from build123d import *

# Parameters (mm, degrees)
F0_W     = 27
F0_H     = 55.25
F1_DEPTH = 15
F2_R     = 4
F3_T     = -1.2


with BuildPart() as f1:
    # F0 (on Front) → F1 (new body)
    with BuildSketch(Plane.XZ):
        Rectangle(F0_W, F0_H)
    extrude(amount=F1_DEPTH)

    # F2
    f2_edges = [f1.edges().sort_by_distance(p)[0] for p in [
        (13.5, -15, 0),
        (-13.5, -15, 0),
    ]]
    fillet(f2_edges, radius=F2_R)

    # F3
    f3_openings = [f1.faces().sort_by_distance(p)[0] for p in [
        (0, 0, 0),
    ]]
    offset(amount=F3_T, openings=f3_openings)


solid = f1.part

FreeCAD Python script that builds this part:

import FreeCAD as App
import Part
import Sketcher
Q = App.Units.Quantity


def edges_at(feature, points):
    """Names of the edges that pass closest to the given points."""
    edges = feature.Shape.Edges
    near = lambda p: min(range(len(edges)), key=lambda i: edges[i].distToShape(Part.Vertex(*p))[0])
    return sorted({f"Edge{near(p) + 1}" for p in points})


def faces_at(feature, points):
    """Names of the faces that lie closest to the given points."""
    faces = feature.Shape.Faces
    near = lambda p: min(range(len(faces)), key=lambda i: faces[i].distToShape(Part.Vertex(*p))[0])
    return sorted({f"Face{near(p) + 1}" for p in points})


def add_polygon(sketch, points):
    """Adds a closed chain of lines whose ends are joined by coincident constraints."""
    first, n = sketch.GeometryCount, len(points)
    for a, b in zip(points, points[1:] + points[:1]):
        sketch.addGeometry(Part.LineSegment(App.Vector(*a, 0), App.Vector(*b, 0)), False)
    for i in range(n):
        sketch.addConstraint(Sketcher.Constraint("Coincident", first + i, 2, first + (i + 1) % n, 1))

doc = App.newDocument("Part")
body = doc.addObject("PartDesign::Body", "Body")

# Sketch on XZ plane
sketch1 = body.newObject("Sketcher::SketchObject", "Sketch")
sketch1.AttachmentSupport = (doc.getObject("XZ_Plane"), [""])
sketch1.MapMode = "FlatFace"
add_polygon(sketch1, [(-14, 28), (-14, -28), (14, -28), (14, 28)])  # lines 0-3
sketch1.addConstraint([
    Sketcher.Constraint("Vertical", 0),
    Sketcher.Constraint("Horizontal", 1),
    Sketcher.Constraint("Vertical", 2),
    Sketcher.Constraint("Horizontal", 3),
    Sketcher.Constraint("Symmetric", 0, 2, 2, 2, -1, 1),
    Sketcher.Constraint("DistanceX", 1, 1, 1, 2, Q("27 mm")),
    Sketcher.Constraint("DistanceY", 0, 2, 0, 1, Q("55.25 mm")),
])
pad1 = body.newObject("PartDesign::Pad", "Pad")
pad1.Profile = sketch1
pad1.Length = 15
doc.recompute()

fillet = body.newObject("PartDesign::Fillet", "Fillet")
fillet.Base = (pad1, edges_at(pad1, [(13.5, -15, 0), (-13.5, -15, 0)]))
fillet.Radius = 4
doc.recompute()

thickness = body.newObject("PartDesign::Thickness", "Thickness")
thickness.Base = (fillet, faces_at(fillet, [(0, 0, 0)]))
thickness.Value = 1.2
thickness.Reversed = True
thickness.Join = "Arc"

doc.recompute()
